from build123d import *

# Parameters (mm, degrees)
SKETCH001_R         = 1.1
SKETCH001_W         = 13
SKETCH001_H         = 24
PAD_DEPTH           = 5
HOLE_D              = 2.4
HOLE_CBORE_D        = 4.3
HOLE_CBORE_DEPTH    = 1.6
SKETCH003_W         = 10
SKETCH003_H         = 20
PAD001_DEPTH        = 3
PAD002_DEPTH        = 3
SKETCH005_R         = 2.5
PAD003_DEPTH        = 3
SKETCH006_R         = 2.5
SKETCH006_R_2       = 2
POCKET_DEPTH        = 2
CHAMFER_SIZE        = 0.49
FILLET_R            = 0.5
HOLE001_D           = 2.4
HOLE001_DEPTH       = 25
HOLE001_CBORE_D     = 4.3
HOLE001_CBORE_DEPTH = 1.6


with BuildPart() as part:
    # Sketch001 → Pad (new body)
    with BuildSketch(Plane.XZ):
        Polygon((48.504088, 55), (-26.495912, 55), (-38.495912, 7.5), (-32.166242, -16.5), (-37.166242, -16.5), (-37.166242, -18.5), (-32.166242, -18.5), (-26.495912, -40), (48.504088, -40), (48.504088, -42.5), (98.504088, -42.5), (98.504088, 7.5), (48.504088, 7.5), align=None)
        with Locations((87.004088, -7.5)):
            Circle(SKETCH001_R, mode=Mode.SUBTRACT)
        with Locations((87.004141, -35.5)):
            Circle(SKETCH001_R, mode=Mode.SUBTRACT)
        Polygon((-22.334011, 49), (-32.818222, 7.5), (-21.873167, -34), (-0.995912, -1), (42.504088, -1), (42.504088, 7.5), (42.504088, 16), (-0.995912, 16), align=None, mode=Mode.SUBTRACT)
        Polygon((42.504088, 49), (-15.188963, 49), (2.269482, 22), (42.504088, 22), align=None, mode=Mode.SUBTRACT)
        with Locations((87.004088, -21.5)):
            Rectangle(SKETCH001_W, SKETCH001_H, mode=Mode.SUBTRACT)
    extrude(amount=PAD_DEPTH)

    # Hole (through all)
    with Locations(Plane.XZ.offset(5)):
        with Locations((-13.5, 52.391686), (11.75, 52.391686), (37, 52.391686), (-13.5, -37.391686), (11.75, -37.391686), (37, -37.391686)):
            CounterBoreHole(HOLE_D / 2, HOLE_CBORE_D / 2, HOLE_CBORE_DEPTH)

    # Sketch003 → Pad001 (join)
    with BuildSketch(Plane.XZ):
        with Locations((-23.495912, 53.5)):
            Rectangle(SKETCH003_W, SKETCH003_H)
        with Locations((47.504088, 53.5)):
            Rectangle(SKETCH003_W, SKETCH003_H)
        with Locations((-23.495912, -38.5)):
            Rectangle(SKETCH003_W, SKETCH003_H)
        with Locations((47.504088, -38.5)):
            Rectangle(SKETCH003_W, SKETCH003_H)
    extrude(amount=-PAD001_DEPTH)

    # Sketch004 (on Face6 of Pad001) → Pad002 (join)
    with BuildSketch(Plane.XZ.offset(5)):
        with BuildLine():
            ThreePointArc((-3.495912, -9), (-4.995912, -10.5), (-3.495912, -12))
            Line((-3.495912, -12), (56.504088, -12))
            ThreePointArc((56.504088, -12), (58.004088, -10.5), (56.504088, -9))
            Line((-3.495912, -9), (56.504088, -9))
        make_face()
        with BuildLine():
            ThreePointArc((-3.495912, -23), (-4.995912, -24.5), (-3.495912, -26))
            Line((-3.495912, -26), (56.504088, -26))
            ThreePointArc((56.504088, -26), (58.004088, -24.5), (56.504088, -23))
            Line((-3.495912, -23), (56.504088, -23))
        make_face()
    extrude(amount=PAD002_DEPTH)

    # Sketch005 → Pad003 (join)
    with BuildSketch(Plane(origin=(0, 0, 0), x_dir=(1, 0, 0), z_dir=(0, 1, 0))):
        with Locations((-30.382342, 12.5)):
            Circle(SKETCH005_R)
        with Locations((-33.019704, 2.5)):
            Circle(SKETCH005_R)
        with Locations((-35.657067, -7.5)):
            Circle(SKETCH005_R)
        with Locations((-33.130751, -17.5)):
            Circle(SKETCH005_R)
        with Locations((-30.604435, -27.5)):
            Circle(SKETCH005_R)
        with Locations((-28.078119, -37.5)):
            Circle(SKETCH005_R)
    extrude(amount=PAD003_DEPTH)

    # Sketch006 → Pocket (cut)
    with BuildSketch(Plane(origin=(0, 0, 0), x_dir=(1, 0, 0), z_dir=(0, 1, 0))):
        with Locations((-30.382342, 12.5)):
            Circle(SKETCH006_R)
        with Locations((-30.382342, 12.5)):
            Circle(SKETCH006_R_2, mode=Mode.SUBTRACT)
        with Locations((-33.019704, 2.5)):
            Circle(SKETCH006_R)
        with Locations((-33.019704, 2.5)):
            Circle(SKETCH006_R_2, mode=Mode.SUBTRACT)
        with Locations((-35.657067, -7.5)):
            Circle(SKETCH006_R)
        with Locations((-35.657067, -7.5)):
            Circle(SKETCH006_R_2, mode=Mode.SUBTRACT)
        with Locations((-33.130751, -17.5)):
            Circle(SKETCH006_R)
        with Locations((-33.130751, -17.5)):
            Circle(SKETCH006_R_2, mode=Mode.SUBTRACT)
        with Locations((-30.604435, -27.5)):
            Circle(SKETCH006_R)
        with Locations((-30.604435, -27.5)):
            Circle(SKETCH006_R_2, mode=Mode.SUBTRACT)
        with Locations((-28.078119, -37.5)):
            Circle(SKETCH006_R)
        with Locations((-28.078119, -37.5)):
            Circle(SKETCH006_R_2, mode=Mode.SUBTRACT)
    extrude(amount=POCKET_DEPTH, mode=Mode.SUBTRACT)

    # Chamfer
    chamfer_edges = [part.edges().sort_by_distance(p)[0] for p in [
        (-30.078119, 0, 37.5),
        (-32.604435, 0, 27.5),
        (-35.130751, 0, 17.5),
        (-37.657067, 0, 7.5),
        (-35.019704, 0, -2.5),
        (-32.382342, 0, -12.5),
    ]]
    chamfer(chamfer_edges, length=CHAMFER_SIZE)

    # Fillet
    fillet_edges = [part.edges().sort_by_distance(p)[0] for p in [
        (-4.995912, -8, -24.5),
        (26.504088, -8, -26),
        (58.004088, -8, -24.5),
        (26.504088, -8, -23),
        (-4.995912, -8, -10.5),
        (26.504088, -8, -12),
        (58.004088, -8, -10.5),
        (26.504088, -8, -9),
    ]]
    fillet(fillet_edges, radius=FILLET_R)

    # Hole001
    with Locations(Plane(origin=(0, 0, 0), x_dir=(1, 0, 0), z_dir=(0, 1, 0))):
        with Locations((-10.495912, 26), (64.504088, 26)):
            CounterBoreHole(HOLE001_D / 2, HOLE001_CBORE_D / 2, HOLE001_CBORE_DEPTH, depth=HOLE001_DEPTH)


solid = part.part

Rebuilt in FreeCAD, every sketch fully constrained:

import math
import FreeCAD as App
import Part
import Sketcher

V = App.Vector


def edges_at(feature, points):
    """Names of the edges that pass closest to the given points."""
    edges = feature.Shape.Edges
    near = lambda p: min(range(len(edges)), key=lambda i: edges[i].distToShape(Part.Vertex(*p))[0])
    return sorted({f"Edge{near(p) + 1}" for p in points})


def add_polygon(sketch, points):
    """Adds a closed chain of lines whose ends are joined by coincident constraints."""
    first, n = sketch.GeometryCount, len(points)
    for a, b in zip(points, points[1:] + points[:1]):
        sketch.addGeometry(Part.LineSegment(App.Vector(*a, 0), App.Vector(*b, 0)), False)
    for i in range(n):
        sketch.addConstraint(Sketcher.Constraint("Coincident", first + i, 2, first + (i + 1) % n, 1))

doc = App.newDocument("Part")
body = doc.addObject("PartDesign::Body", "Body")

sketch1 = doc.addObject("Sketcher::SketchObject", "Sketch")
body.addObject(sketch1)
sketch1.AttachmentSupport = (doc.XZ_Plane, [""])
sketch1.MapMode = "FlatFace"
add_polygon(sketch1, [(48.5, 55), (-26.5, 55), (-38.5, 7.5), (-32.2, -16.5), (-37.2, -16.5), (-37.2, -18.5), (-32.2, -18.5), (-26.5, -40), (48.5, -40), (48.5, -42.5), (98.5, -42.5), (98.5, 7.5), (48.5, 7.5)])
sketch1.addGeometry(Part.Circle(V(87, -35.5, 0), V(0, 0, 1), 1.1), False)
add_polygon(sketch1, [(93.5, -33.5), (80.5, -33.5), (80.5, -9.5), (93.5, -9.5)])
sketch1.addGeometry(Part.Circle(V(87, -7.5, 0), V(0, 0, 1), 1.1), False)
add_polygon(sketch1, [(-32.8, 7.5), (-22.3, 49), (-1, 16), (42.5, 16), (42.5, -1), (-1, -1), (-21.9, -34)])
add_polygon(sketch1, [(-15.2, 49), (42.5, 49), (42.5, 22), (2.3, 22)])
sketch1.addConstraint([
    Sketcher.Constraint("Horizontal", 0),
    Sketcher.Constraint("Horizontal", 3),
    Sketcher.Constraint("Vertical", 4),
    Sketcher.Constraint("Horizontal", 5),
    Sketcher.Constraint("Horizontal", 7),
    Sketcher.Constraint("Vertical", 8),
    Sketcher.Constraint("Horizontal", 9),
    Sketcher.Constraint("Vertical", 10),
    Sketcher.Constraint("Horizontal", 11),
    Sketcher.Constraint("Vertical", 12),
    Sketcher.Constraint("Horizontal", 14),
    Sketcher.Constraint("Vertical", 15),
    Sketcher.Constraint("Horizontal", 16),
    Sketcher.Constraint("Vertical", 17),
    Sketcher.Constraint("Horizontal", 21),
    Sketcher.Constraint("Vertical", 22),
    Sketcher.Constraint("Horizontal", 23),
    Sketcher.Constraint("Horizontal", 26),
    Sketcher.Constraint("Vertical", 27),
    Sketcher.Constraint("Horizontal", 28),
    Sketcher.Constraint("Equal", 13, 18),
    Sketcher.Constraint("Parallel", 2, 6),
    Sketcher.Constraint("Parallel", 1, 19),
    Sketcher.Constraint("Parallel", 6, 25),
    Sketcher.Constraint("Parallel", 20, 29),
    Sketcher.Constraint("Horizontal", 1, 2, 10, 2),
    Sketcher.Constraint("Horizontal", 11, 2, 25, 2),
    Sketcher.Constraint("Horizontal", 19, 2, 26, 2),
    Sketcher.Constraint("Vertical", 2, 2, 5, 2),
    Sketcher.Constraint("Vertical", 0, 2, 6, 2),
    Sketcher.Constraint("Vertical", 8, 2, 11, 2),
    Sketcher.Constraint("Vertical", 20, 2, 23, 2),
    Sketcher.Constraint("Vertical", 22, 2, 26, 2),
    Sketcher.Constraint("Equal", 11, 10),
    Sketcher.Constraint("Diameter", 13, 2.2),
    Sketcher.Constraint("DistanceX", 0, 2, 0, 1, 75.0),
    Sketcher.Constraint("DistanceX", 3, 2, 3, 1, 5.0),
    Sketcher.Constraint("DistanceX", 9, 1, 9, 2, 50.0),
    Sketcher.Constraint("DistanceX", 14, 2, 14, 1, 13.0),
    Sketcher.Constraint("DistanceY", 4, 2, 4, 1, 2.0),
    Sketcher.Constraint("DistanceY", 15, 1, 15, 2, 24.0),
    Sketcher.Constraint("DistanceY", 22, 2, 22, 1, 17.0),
    Sketcher.Constraint("DistanceY", 27, 2, 27, 1, 27.0),
    Sketcher.Constraint("DistanceX", 21, 1, 21, 2, 43.5),
    Sketcher.Constraint("DistanceY", 8, 2, 8, 1, 2.5),
    Sketcher.Constraint("DistanceY", 12, 1, 12, 2, 47.5),
    Sketcher.Constraint("DistanceY", -1, 1, 0, 2, 55.0),
    Sketcher.Constraint("DistanceY", -1, 1, 19, 2, 49.0),
    Sketcher.Constraint("DistanceY", -1, 1, 20, 2, 16.0),
    Sketcher.Constraint("DistanceY", 24, 2, -1, 1, 34.0),
    Sketcher.Constraint("DistanceY", 13, 3, 18, 3, 28.0),
    Sketcher.Constraint("DistanceX", 1, 2, 0, 2, 12.0),
    Sketcher.Constraint("DistanceY", 18, 3, 1, 2, 15.0),
    Sketcher.Constraint("DistanceY", 2, 2, 1, 2, 24.0),
    Sketcher.Constraint("DistanceY", 13, 3, 14, 2, 2.0),
    Sketcher.Constraint("DistanceX", 14, 2, 9, 2, 18.0),
    Sketcher.Constraint("DistanceX", 21, 2, 11, 2, 6.0),
    Sketcher.Constraint("DistanceX", 0, 2, 18, 3, 113.5),
    Sketcher.Constraint("DistanceX", 26, 1, 26, 2, 57.693051),
    Sketcher.Constraint("DistanceX", 0, 2, 19, 2, 4.161901),
    Sketcher.Constraint("DistanceX", -1, 1, 13, 3, 87.004141),
    Sketcher.Constraint("DistanceX", 1, 2, -1, 1, 38.495912),
])
pad1 = doc.addObject("PartDesign::Pad", "Pad")
body.addObject(pad1)
pad1.Profile = sketch1
pad1.Length = 5

sketch2 = doc.addObject("Sketcher::SketchObject", "Sketch001")
body.addObject(sketch2)
sketch2.AttachmentSupport = (doc.XZ_Plane, [""])
sketch2.MapMode = "FlatFace"
sketch2.AttachmentOffset = App.Placement(V(0, 0, 5), App.Rotation())
sketch2.addGeometry([
    Part.Circle(V(-13.5, 52.4, 0), V(0, 0, 1), 1.2),
    Part.Circle(V(11.8, 52.4, 0), V(0, 0, 1), 1.2),
    Part.Circle(V(37, 52.4, 0), V(0, 0, 1), 1.2),
    Part.Circle(V(-13.5, -37.4, 0), V(0, 0, 1), 1.2),
    Part.Circle(V(11.8, -37.4, 0), V(0, 0, 1), 1.2),
    Part.Circle(V(37, -37.4, 0), V(0, 0, 1), 1.2),
], False)
sketch2.addConstraint([
    Sketcher.Constraint("Equal", 0, 1),
    Sketcher.Constraint("Equal", 1, 2),
    Sketcher.Constraint("Equal", 2, 3),
    Sketcher.Constraint("Equal", 3, 4),
    Sketcher.Constraint("Equal", 4, 5),
    Sketcher.Constraint("Horizontal", 0, 3, 1, 3),
    Sketcher.Constraint("Horizontal", 1, 3, 2, 3),
    Sketcher.Constraint("Horizontal", 3, 3, 4, 3),
    Sketcher.Constraint("Horizontal", 4, 3, 5, 3),
    Sketcher.Constraint("Vertical", 0, 3, 3, 3),
    Sketcher.Constraint("Vertical", 1, 3, 4, 3),
    Sketcher.Constraint("Vertical", 2, 3, 5, 3),
    Sketcher.Constraint("Diameter", 0, 2.4),
    Sketcher.Constraint("DistanceX", -1, 1, 2, 3, 37.0),
    Sketcher.Constraint("DistanceX", 0, 3, -1, 1, 13.5),
    Sketcher.Constraint("DistanceX", -1, 1, 1, 3, 11.75),
    Sketcher.Constraint("DistanceY", 3, 3, 0, 3, 89.783372),
    Sketcher.Constraint("DistanceY", -1, 1, 0, 3, 52.391686),
])
doc.recompute()
hole = doc.addObject("PartDesign::Hole", "Hole")
body.addObject(hole)
hole.Profile = sketch2
hole.ThreadType = "None"
hole.Diameter = 2.4
hole.DepthType = "ThroughAll"
hole.HoleCutType = "Counterbore"
hole.HoleCutDiameter = 4.3
hole.HoleCutDepth = 1.6

sketch3 = doc.addObject("Sketcher::SketchObject", "Sketch002")
body.addObject(sketch3)
sketch3.AttachmentSupport = (doc.XZ_Plane, [""])
sketch3.MapMode = "FlatFace"
add_polygon(sketch3, [(-28, 64), (-28, 44), (-18, 44), (-18, 64)])
add_polygon(sketch3, [(43, 64), (43, 44), (53, 44), (53, 64)])
add_polygon(sketch3, [(-28, -28), (-28, -48), (-18, -48), (-18, -28)])
add_polygon(sketch3, [(43, -28), (43, -48), (53, -48), (53, -28)])
sketch3.addConstraint([
    Sketcher.Constraint("Vertical", 0),
    Sketcher.Constraint("Horizontal", 1),
    Sketcher.Constraint("Vertical", 2),
    Sketcher.Constraint("Horizontal", 3),
    Sketcher.Constraint("Vertical", 4),
    Sketcher.Constraint("Horizontal", 5),
    Sketcher.Constraint("Vertical", 6),
    Sketcher.Constraint("Horizontal", 7),
    Sketcher.Constraint("Vertical", 8),
    Sketcher.Constraint("Horizontal", 9),
    Sketcher.Constraint("Vertical", 10),
    Sketcher.Constraint("Horizontal", 11),
    Sketcher.Constraint("Vertical", 12),
    Sketcher.Constraint("Horizontal", 13),
    Sketcher.Constraint("Vertical", 14),
    Sketcher.Constraint("Horizontal", 15),
    Sketcher.Constraint("Horizontal", 1, 2, 4, 2),
    Sketcher.Constraint("Horizontal", 3, 2, 6, 2),
    Sketcher.Constraint("Horizontal", 9, 2, 12, 2),
    Sketcher.Constraint("Horizontal", 11, 2, 14, 2),
    Sketcher.Constraint("Vertical", 3, 2, 8, 2),
    Sketcher.Constraint("Vertical", 2, 2, 9, 2),
    Sketcher.Constraint("Vertical", 7, 2, 12, 2),
    Sketcher.Constraint("Vertical", 6, 2, 13, 2),
    Sketcher.Constraint("Equal", 3, 5),
    Sketcher.Constraint("Equal", 6, 8),
    Sketcher.Constraint("DistanceX", 1, 1, 1, 2, 10.0),
    Sketcher.Constraint("DistanceY", 0, 2, 0, 1, 20.0),
    Sketcher.Constraint("DistanceX", 1, 2, 4, 2, 61.0),
    Sketcher.Constraint("DistanceY", 8, 2, 0, 2, 92.0),
    Sketcher.Constraint("DistanceY", -1, 1, 0, 2, 43.5),
    Sketcher.Constraint("DistanceX", -1, 1, 4, 2, 42.504088),
])
pad2 = doc.addObject("PartDesign::Pad", "Pad001")
body.addObject(pad2)
pad2.Profile = sketch3
pad2.Length = 3
pad2.Reversed = True

sketch4 = doc.addObject("Sketcher::SketchObject", "Sketch003")
body.addObject(sketch4)
sketch4.AttachmentSupport = (doc.XZ_Plane, [""])
sketch4.MapMode = "FlatFace"
sketch4.AttachmentOffset = App.Placement(V(0, 0, 5), App.Rotation())
sketch4.addGeometry([
    Part.ArcOfCircle(Part.Circle(V(-3.5, -10.5, 0), V(0, 0, 1), 1.5), math.radians(90), math.radians(270)),
    Part.LineSegment(V(-3.5, -12, 0), V(56.5, -12, 0)),
    Part.ArcOfCircle(Part.Circle(V(56.5, -10.5, 0), V(0, 0, 1), 1.5), math.radians(-90), math.radians(90)),
    Part.LineSegment(V(56.5, -9, 0), V(-3.5, -9, 0)),
    Part.ArcOfCircle(Part.Circle(V(-3.5, -24.5, 0), V(0, 0, 1), 1.5), math.radians(90), math.radians(270)),
    Part.LineSegment(V(-3.5, -26, 0), V(56.5, -26, 0)),
    Part.ArcOfCircle(Part.Circle(V(56.5, -24.5, 0), V(0, 0, 1), 1.5), math.radians(-90), math.radians(90)),
    Part.LineSegment(V(56.5, -23, 0), V(-3.5, -23, 0)),
], False)
sketch4.addConstraint([
    Sketcher.Constraint("Tangent", 0, 2, 1, 1),
    Sketcher.Constraint("Tangent", 1, 2, 2, 1),
    Sketcher.Constraint("Tangent", 2, 2, 3, 1),
    Sketcher.Constraint("Tangent", 3, 2, 0, 1),
    Sketcher.Constraint("Tangent", 4, 2, 5, 1),
    Sketcher.Constraint("Tangent", 5, 2, 6, 1),
    Sketcher.Constraint("Tangent", 6, 2, 7, 1),
    Sketcher.Constraint("Tangent", 7, 2, 4, 1),
    Sketcher.Constraint("Horizontal", 1),
    Sketcher.Constraint("Horizontal", 3),
    Sketcher.Constraint("Horizontal", 5),
    Sketcher.Constraint("Horizontal", 7),
    Sketcher.Constraint("Equal", 2, 4),
    Sketcher.Constraint("Vertical", 0, 3, 4, 3),
    Sketcher.Constraint("Vertical", 2, 3, 6, 3),
    Sketcher.Constraint("Radius", 0, 1.5),
    Sketcher.Constraint("DistanceX", 1, 1, 1, 2, 60.0),
    Sketcher.Constraint("DistanceY", 0, 2, -1, 1, 12.0),
    Sketcher.Constraint("DistanceY", 4, 2, -1, 1, 26.0),
    Sketcher.Constraint("DistanceX", -1, 1, 2, 3, 56.504088),
])
pad3 = doc.addObject("PartDesign::Pad", "Pad002")
body.addObject(pad3)
pad3.Profile = sketch4
pad3.Length = 3

sketch5 = doc.addObject("Sketcher::SketchObject", "Sketch004")
body.addObject(sketch5)
sketch5.AttachmentSupport = (doc.XZ_Plane, [""])
sketch5.MapMode = "FlatFace"
sketch5.addGeometry([
    Part.Circle(V(-30.4, -12.5, 0), V(0, 0, 1), 2.5),
    Part.Circle(V(-33, -2.5, 0), V(0, 0, 1), 2.5),
    Part.Circle(V(-35.7, 7.5, 0), V(0, 0, 1), 2.5),
    Part.Circle(V(-33.1, 17.5, 0), V(0, 0, 1), 2.5),
    Part.Circle(V(-30.6, 27.5, 0), V(0, 0, 1), 2.5),
    Part.Circle(V(-28.1, 37.5, 0), V(0, 0, 1), 2.5),
], False)
sketch5.addConstraint([
    Sketcher.Constraint("Equal", 0, 1),
    Sketcher.Constraint("Equal", 1, 2),
    Sketcher.Constraint("Equal", 2, 3),
    Sketcher.Constraint("Equal", 3, 4),
    Sketcher.Constraint("Equal", 4, 5),
    Sketcher.Constraint("Diameter", 0, 5.0),
    Sketcher.Constraint("DistanceY", 0, 3, 1, 3, 10.0),
    Sketcher.Constraint("DistanceY", 1, 3, 2, 3, 10.0),
    Sketcher.Constraint("DistanceY", 2, 3, 3, 3, 10.0),
    Sketcher.Constraint("DistanceY", 3, 3, 4, 3, 10.0),
    Sketcher.Constraint("DistanceY", 4, 3, 5, 3, 10.0),
    Sketcher.Constraint("DistanceY", 0, 3, -1, 1, 12.5),
    Sketcher.Constraint("DistanceX", 3, 3, -1, 1, 33.130751),
    Sketcher.Constraint("DistanceX", 5, 3, -1, 1, 28.078119),
    Sketcher.Constraint("DistanceX", 1, 3, 0, 3, 2.637362),
    Sketcher.Constraint("DistanceX", 3, 3, 0, 3, 2.748409),
    Sketcher.Constraint("DistanceX", 2, 3, 4, 3, 5.052632),
    Sketcher.Constraint("DistanceX", 1, 3, 4, 3, 2.415269),
])
pad4 = doc.addObject("PartDesign::Pad", "Pad003")
body.addObject(pad4)
pad4.Profile = sketch5
pad4.Length = 3
pad4.Reversed = True

sketch6 = doc.addObject("Sketcher::SketchObject", "Sketch005")
body.addObject(sketch6)
sketch6.AttachmentSupport = (doc.XZ_Plane, [""])
sketch6.MapMode = "FlatFace"
sketch6.addGeometry([
    Part.Circle(V(-30.4, -12.5, 0), V(0, 0, 1), 2.5),
    Part.Circle(V(-30.4, -12.5, 0), V(0, 0, 1), 2),
    Part.Circle(V(-33, -2.5, 0), V(0, 0, 1), 2.5),
    Part.Circle(V(-33, -2.5, 0), V(0, 0, 1), 2),
    Part.Circle(V(-35.7, 7.5, 0), V(0, 0, 1), 2.5),
    Part.Circle(V(-35.7, 7.5, 0), V(0, 0, 1), 2),
    Part.Circle(V(-33.1, 17.5, 0), V(0, 0, 1), 2.5),
    Part.Circle(V(-33.1, 17.5, 0), V(0, 0, 1), 2),
    Part.Circle(V(-30.6, 27.5, 0), V(0, 0, 1), 2.5),
    Part.Circle(V(-30.6, 27.5, 0), V(0, 0, 1), 2),
    Part.Circle(V(-28.1, 37.5, 0), V(0, 0, 1), 2.5),
    Part.Circle(V(-28.1, 37.5, 0), V(0, 0, 1), 2),
], False)
sketch6.addConstraint([
    Sketcher.Constraint("Coincident", 1, 3, 0, 3),
    Sketcher.Constraint("Coincident", 3, 3, 2, 3),
    Sketcher.Constraint("Coincident", 5, 3, 4, 3),
    Sketcher.Constraint("Coincident", 7, 3, 6, 3),
    Sketcher.Constraint("Coincident", 9, 3, 8, 3),
    Sketcher.Constraint("Coincident", 11, 3, 10, 3),
    Sketcher.Constraint("Equal", 0, 2),
    Sketcher.Constraint("Equal", 1, 3),
    Sketcher.Constraint("Equal", 2, 4),
    Sketcher.Constraint("Equal", 3, 5),
    Sketcher.Constraint("Equal", 4, 6),
    Sketcher.Constraint("Equal", 5, 7),
    Sketcher.Constraint("Equal", 6, 8),
    Sketcher.Constraint("Equal", 7, 9),
    Sketcher.Constraint("Equal", 8, 10),
    Sketcher.Constraint("Equal", 9, 11),
    Sketcher.Constraint("Diameter", 0, 5.0),
    Sketcher.Constraint("Diameter", 1, 4.0),
    Sketcher.Constraint("DistanceY", 0, 3, 2, 3, 10.0),
    Sketcher.Constraint("DistanceY", 2, 3, 4, 3, 10.0),
    Sketcher.Constraint("DistanceY", 4, 3, 6, 3, 10.0),
    Sketcher.Constraint("DistanceY", 6, 3, 8, 3, 10.0),
    Sketcher.Constraint("DistanceY", 8, 3, 10, 3, 10.0),
    Sketcher.Constraint("DistanceY", 0, 3, -1, 1, 12.5),
    Sketcher.Constraint("DistanceX", 6, 3, -1, 1, 33.130751),
    Sketcher.Constraint("DistanceX", 10, 3, -1, 1, 28.078119),
    Sketcher.Constraint("DistanceX", 2, 3, 0, 3, 2.637362),
    Sketcher.Constraint("DistanceX", 6, 3, 0, 3, 2.748409),
    Sketcher.Constraint("DistanceX", 4, 3, 8, 3, 5.052632),
    Sketcher.Constraint("DistanceX", 2, 3, 8, 3, 2.415269),
])
pocket1 = doc.addObject("PartDesign::Pocket", "Pocket")
body.addObject(pocket1)
pocket1.Profile = sketch6
pocket1.Length = 2
doc.recompute()

chamfer = doc.addObject("PartDesign::Chamfer", "Chamfer")
body.addObject(chamfer)
chamfer.Base = (pocket1, edges_at(pocket1, [
    (-30.078, 0, 37.5),
    (-32.604, 0, 27.5),
    (-35.131, 0, 17.5),
    (-37.657, 0, 7.5),
    (-35.02, 0, -2.5),
    (-32.382, 0, -12.5),
]))
chamfer.Size = 0.49
doc.recompute()

fillet = doc.addObject("PartDesign::Fillet", "Fillet")
body.addObject(fillet)
fillet.Base = (chamfer, edges_at(chamfer, [
    (-4.996, -8, -24.5),
    (26.504, -8, -26),
    (58.004, -8, -24.5),
    (26.504, -8, -23),
    (-4.996, -8, -10.5),
    (26.504, -8, -12),
    (58.004, -8, -10.5),
    (26.504, -8, -9),
]))
fillet.Radius = 0.5

sketch7 = doc.addObject("Sketcher::SketchObject", "Sketch006")
body.addObject(sketch7)
sketch7.AttachmentSupport = (doc.XZ_Plane, [""])
sketch7.MapMode = "FlatFace"
sketch7.addGeometry([
    Part.Circle(V(-10.5, -26, 0), V(0, 0, 1), 1.2),
    Part.Circle(V(64.5, -26, 0), V(0, 0, 1), 1.2),
], False)
sketch7.addConstraint([
    Sketcher.Constraint("Equal", 0, 1),
    Sketcher.Constraint("Horizontal", 0, 3, 1, 3),
    Sketcher.Constraint("Diameter", 0, 2.4),
    Sketcher.Constraint("DistanceY", 0, 3, -1, 1, 26.0),
    Sketcher.Constraint("DistanceX", 0, 3, 1, 3, 75.0),
    Sketcher.Constraint("DistanceX", 0, 3, -1, 1, 10.495912),
])
doc.recompute()
hole2 = doc.addObject("PartDesign::Hole", "Hole001")
body.addObject(hole2)
hole2.Profile = sketch7
hole2.ThreadType = "None"
hole2.Diameter = 2.4
hole2.DepthType = "Dimension"
hole2.Depth = 25
hole2.DrillPoint = "Flat"
hole2.HoleCutType = "Counterbore"
hole2.HoleCutDiameter = 4.3
hole2.HoleCutDepth = 1.6
hole2.Reversed = True

doc.recompute()
